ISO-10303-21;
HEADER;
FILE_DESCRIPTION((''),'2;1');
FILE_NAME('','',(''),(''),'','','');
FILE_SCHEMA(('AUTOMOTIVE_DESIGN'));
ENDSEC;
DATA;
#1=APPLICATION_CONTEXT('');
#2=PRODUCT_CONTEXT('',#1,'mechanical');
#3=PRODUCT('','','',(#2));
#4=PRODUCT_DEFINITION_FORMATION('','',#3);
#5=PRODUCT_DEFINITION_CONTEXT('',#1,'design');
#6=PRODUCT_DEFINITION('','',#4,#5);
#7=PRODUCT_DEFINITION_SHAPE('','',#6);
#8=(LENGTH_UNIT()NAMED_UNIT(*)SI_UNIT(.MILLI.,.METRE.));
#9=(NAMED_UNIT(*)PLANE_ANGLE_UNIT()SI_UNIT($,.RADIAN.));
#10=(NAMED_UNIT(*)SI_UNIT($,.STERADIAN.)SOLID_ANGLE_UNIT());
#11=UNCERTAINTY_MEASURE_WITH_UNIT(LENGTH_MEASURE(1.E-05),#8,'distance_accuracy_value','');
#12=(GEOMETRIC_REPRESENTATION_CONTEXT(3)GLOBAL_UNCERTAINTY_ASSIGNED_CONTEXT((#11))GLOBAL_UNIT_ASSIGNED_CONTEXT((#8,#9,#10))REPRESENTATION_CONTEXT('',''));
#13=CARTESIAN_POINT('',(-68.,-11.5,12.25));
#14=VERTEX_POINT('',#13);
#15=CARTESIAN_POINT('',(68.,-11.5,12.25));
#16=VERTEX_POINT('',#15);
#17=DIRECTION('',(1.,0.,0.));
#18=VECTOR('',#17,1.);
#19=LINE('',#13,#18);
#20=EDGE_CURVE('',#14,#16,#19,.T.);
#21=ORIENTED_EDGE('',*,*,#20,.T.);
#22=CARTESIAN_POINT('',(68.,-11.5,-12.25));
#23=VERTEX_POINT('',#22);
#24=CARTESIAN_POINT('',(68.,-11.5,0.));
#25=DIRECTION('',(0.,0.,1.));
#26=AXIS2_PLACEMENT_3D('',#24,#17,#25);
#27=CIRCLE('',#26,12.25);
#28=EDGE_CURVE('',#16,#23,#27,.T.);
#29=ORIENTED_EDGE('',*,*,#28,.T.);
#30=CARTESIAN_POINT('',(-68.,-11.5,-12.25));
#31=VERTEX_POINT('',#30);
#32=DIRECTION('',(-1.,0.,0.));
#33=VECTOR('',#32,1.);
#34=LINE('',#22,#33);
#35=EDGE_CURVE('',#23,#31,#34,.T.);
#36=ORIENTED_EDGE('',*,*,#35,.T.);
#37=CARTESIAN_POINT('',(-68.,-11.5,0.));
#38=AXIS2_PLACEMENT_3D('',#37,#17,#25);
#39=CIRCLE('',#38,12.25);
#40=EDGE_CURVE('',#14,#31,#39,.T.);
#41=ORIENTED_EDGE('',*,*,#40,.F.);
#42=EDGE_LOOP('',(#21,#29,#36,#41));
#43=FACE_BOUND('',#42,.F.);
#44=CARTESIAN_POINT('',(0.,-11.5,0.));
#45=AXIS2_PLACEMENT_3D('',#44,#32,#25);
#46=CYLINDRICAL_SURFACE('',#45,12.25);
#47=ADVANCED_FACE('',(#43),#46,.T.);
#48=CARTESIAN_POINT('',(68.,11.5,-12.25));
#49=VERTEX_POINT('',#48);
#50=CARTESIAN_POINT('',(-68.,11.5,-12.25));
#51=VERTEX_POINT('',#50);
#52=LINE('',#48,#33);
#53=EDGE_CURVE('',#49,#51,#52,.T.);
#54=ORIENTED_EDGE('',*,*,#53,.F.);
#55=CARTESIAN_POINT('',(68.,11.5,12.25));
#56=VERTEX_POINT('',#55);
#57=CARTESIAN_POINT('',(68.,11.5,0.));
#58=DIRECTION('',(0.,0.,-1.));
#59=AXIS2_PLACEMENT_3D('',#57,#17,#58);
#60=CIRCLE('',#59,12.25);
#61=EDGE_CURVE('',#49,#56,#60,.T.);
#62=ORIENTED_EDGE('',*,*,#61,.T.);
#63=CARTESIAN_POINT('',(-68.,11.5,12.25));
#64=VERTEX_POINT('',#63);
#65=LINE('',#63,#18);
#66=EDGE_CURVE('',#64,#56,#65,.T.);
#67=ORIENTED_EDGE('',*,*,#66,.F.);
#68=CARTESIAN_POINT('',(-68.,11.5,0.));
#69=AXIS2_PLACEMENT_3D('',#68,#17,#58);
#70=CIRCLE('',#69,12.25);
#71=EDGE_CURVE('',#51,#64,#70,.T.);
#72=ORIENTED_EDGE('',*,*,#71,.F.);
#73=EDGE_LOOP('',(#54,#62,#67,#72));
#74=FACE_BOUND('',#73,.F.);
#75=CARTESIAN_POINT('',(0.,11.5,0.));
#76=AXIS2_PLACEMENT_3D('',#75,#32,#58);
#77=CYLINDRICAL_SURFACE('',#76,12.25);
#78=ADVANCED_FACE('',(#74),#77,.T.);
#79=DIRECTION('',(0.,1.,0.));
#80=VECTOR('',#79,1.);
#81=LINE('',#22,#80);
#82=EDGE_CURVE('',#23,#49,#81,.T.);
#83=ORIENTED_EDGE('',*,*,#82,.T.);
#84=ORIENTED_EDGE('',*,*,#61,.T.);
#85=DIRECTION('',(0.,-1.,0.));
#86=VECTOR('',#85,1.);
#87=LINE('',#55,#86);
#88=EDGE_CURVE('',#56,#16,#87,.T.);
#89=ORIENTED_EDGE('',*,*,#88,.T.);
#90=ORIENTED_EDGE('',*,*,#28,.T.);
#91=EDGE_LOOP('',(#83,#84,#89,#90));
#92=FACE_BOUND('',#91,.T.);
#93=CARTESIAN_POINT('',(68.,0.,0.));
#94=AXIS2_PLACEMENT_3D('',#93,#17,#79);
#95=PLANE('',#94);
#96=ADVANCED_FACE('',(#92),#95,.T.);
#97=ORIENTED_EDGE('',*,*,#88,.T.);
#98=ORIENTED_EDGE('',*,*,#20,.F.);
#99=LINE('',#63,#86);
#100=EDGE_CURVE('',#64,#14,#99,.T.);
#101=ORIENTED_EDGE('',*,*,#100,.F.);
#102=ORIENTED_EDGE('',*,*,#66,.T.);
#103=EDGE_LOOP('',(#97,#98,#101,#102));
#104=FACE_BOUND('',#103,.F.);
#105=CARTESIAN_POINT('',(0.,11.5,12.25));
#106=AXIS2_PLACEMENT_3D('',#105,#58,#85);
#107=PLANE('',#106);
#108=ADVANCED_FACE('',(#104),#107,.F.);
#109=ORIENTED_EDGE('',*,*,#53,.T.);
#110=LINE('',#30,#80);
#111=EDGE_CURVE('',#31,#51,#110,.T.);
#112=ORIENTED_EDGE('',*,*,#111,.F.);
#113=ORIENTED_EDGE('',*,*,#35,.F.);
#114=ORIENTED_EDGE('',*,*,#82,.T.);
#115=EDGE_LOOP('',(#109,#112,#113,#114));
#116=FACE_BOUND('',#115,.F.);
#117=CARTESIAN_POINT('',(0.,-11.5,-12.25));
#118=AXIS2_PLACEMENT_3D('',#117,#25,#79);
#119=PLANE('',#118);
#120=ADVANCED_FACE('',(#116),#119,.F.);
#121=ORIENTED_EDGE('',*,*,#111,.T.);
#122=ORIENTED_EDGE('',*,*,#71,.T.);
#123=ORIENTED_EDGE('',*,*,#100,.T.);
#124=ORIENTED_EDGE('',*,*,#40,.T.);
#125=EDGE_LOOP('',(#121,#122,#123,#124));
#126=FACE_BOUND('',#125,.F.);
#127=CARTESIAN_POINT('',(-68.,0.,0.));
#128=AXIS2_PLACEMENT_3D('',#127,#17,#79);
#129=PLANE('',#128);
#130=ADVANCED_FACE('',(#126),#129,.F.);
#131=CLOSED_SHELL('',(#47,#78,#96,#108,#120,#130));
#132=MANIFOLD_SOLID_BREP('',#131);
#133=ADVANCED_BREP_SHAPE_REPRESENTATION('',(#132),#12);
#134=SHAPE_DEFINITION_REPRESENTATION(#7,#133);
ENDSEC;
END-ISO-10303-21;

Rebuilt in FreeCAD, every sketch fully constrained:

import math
import FreeCAD as App
import Part
import Sketcher
from FreeCAD import Vector

doc = App.newDocument("Part")
body = doc.addObject("PartDesign::Body", "Body")

# Sketch on YZ plane
sketch1 = body.newObject("Sketcher::SketchObject", "Sketch")
sketch1.AttachmentSupport = (doc.getObject("YZ_Plane"), [""])
sketch1.MapMode = "FlatFace"
sketch1.addGeometry(Part.ArcOfCircle(Part.Circle(Vector(11.5, 0, 0), Vector(0, 0, 1), 12.25), math.radians(-90), math.radians(90)), False)
sketch1.addGeometry(Part.LineSegment(Vector(11.5, 12.25, 0), Vector(-11.5, 12.25, 0)), False)
sketch1.addGeometry(Part.ArcOfCircle(Part.Circle(Vector(-11.5, 0, 0), Vector(0, 0, 1), 12.25), math.radians(90), math.radians(270)), False)
sketch1.addGeometry(Part.LineSegment(Vector(-11.5, -12.25, 0), Vector(11.5, -12.25, 0)), False)
sketch1.addConstraint(Sketcher.Constraint("Tangent", 0, 2, 1, 1))
sketch1.addConstraint(Sketcher.Constraint("Tangent", 1, 2, 2, 1))
sketch1.addConstraint(Sketcher.Constraint("Tangent", 2, 2, 3, 1))
sketch1.addConstraint(Sketcher.Constraint("Tangent", 3, 2, 0, 1))
sketch1.addConstraint(Sketcher.Constraint("Horizontal", 1))
sketch1.addConstraint(Sketcher.Constraint("Horizontal", 3))
sketch1.addConstraint(Sketcher.Constraint("Symmetric", 0, 3, 2, 3, -1, 1))
sketch1.addConstraint(Sketcher.Constraint("Radius", 0, 12.25))
sketch1.addConstraint(Sketcher.Constraint("DistanceX", 1, 2, 1, 1, 23.0))
pad1 = body.newObject("PartDesign::Pad", "Pad")
pad1.Profile = sketch1
pad1.Length = 136
pad1.Midplane = True

doc.recompute()
